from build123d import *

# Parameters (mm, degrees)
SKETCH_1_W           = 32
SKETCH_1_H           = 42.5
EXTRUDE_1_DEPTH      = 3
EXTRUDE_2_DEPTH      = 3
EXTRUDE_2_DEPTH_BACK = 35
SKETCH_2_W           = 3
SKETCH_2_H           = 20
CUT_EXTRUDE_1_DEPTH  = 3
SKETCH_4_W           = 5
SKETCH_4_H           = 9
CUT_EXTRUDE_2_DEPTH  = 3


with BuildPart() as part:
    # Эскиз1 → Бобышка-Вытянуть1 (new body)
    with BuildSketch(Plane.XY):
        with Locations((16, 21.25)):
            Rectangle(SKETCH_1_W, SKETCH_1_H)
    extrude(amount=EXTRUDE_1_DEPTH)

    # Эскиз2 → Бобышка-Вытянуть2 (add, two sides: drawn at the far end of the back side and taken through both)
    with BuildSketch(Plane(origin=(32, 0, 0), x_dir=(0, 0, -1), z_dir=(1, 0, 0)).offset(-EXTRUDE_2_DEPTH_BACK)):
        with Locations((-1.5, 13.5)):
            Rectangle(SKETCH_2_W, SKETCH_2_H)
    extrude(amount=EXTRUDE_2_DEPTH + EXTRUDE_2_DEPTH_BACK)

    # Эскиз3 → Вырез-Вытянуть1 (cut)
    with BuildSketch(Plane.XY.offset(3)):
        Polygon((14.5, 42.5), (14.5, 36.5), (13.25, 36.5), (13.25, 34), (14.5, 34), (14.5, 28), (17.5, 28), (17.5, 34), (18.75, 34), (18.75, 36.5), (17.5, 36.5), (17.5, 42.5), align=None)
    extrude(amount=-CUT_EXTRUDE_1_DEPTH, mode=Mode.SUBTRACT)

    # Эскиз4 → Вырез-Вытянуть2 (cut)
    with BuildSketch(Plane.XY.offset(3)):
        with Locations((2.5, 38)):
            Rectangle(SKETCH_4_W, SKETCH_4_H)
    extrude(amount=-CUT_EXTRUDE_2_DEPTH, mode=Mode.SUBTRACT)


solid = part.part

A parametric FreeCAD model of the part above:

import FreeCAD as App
import Part
import Sketcher
from FreeCAD import Vector
Q = App.Units.Quantity


def add_polygon(sketch, points):
    """Adds a closed chain of lines whose ends are joined by coincident constraints."""
    first, n = sketch.GeometryCount, len(points)
    for a, b in zip(points, points[1:] + points[:1]):
        sketch.addGeometry(Part.LineSegment(App.Vector(*a, 0), App.Vector(*b, 0)), False)
    for i in range(n):
        sketch.addConstraint(Sketcher.Constraint("Coincident", first + i, 2, first + (i + 1) % n, 1))

doc = App.newDocument("Part")
body = doc.addObject("PartDesign::Body", "Body")

sketch1 = doc.addObject("Sketcher::SketchObject", "Sketch")
body.addObject(sketch1)
sketch1.AttachmentSupport = (doc.XY_Plane, [""])
sketch1.MapMode = "FlatFace"
add_polygon(sketch1, [(0, 42), (0, 0), (32, 0), (32, 42)])
sketch1.addConstraint([
    Sketcher.Constraint("Vertical", 0),
    Sketcher.Constraint("Horizontal", 1),
    Sketcher.Constraint("Vertical", 2),
    Sketcher.Constraint("Horizontal", 3),
    Sketcher.Constraint("Coincident", 0, 2, -1, 1),
    Sketcher.Constraint("DistanceX", 1, 1, 1, 2, Q("32 mm")),
    Sketcher.Constraint("DistanceY", 0, 2, 0, 1, Q("42.5 mm")),
])
pad1 = doc.addObject("PartDesign::Pad", "Pad")
body.addObject(pad1)
pad1.Profile = sketch1
pad1.Length = 3

sketch2 = doc.addObject("Sketcher::SketchObject", "Sketch001")
body.addObject(sketch2)
sketch2.AttachmentSupport = (doc.YZ_Plane, [""])
sketch2.MapMode = "FlatFace"
sketch2.AttachmentOffset = App.Placement(Vector(0, 0, 32), App.Rotation())
add_polygon(sketch2, [(23.5, 3), (3.5, 3), (3.5, 0), (23.5, 0)])
sketch2.addConstraint([
    Sketcher.Constraint("Horizontal", 0),
    Sketcher.Constraint("Vertical", 1),
    Sketcher.Constraint("Horizontal", 2),
    Sketcher.Constraint("Vertical", 3),
    Sketcher.Constraint("PointOnObject", 1, 2, -1),
    Sketcher.Constraint("DistanceX", 0, 2, 0, 1, Q("20 mm")),
    Sketcher.Constraint("DistanceY", 1, 2, 1, 1, Q("3 mm")),
    Sketcher.Constraint("DistanceX", -1, 1, 0, 2, Q("3.5 mm")),
])
pad2 = doc.addObject("PartDesign::Pad", "Pad001")
body.addObject(pad2)
pad2.Profile = sketch2
pad2.Type = "TwoLengths"
pad2.Length = 3
pad2.Length2 = 35

sketch3 = doc.addObject("Sketcher::SketchObject", "Sketch002")
body.addObject(sketch3)
sketch3.AttachmentSupport = (doc.XY_Plane, [""])
sketch3.MapMode = "FlatFace"
sketch3.AttachmentOffset = App.Placement(Vector(0, 0, 3), App.Rotation())
add_polygon(sketch3, [(14.5, 42.5), (14.5, 36.5), (13.2, 36.5), (13.2, 34), (14.5, 34), (14.5, 28), (17.5, 28), (17.5, 34), (18.8, 34), (18.8, 36.5), (17.5, 36.5), (17.5, 42.5)])
sketch3.addConstraint([
    Sketcher.Constraint("Vertical", 0),
    Sketcher.Constraint("Horizontal", 1),
    Sketcher.Constraint("Vertical", 2),
    Sketcher.Constraint("Horizontal", 3),
    Sketcher.Constraint("Vertical", 4),
    Sketcher.Constraint("Horizontal", 5),
    Sketcher.Constraint("Vertical", 6),
    Sketcher.Constraint("Horizontal", 7),
    Sketcher.Constraint("Vertical", 8),
    Sketcher.Constraint("Horizontal", 9),
    Sketcher.Constraint("Vertical", 10),
    Sketcher.Constraint("Horizontal", 11),
    Sketcher.Constraint("Horizontal", 3, 2, 6, 2),
    Sketcher.Constraint("Horizontal", 1, 2, 8, 2),
    Sketcher.Constraint("Vertical", 0, 2, 3, 2),
    Sketcher.Constraint("Vertical", 6, 2, 9, 2),
    Sketcher.Constraint("Equal", 3, 7),
    Sketcher.Constraint("Equal", 0, 4),
    Sketcher.Constraint("DistanceX", 5, 1, 5, 2, Q("3 mm")),
    Sketcher.Constraint("DistanceY", 0, 2, 0, 1, Q("6 mm")),
    Sketcher.Constraint("DistanceY", 2, 2, 2, 1, Q("2.5 mm")),
    Sketcher.Constraint("DistanceY", -1, 1, 2, 2, Q("34 mm")),
    Sketcher.Constraint("DistanceX", 1, 2, 1, 1, Q("1.25 mm")),
    Sketcher.Constraint("DistanceX", -1, 1, 0, 2, Q("14.5 mm")),
])
pocket1 = doc.addObject("PartDesign::Pocket", "Pocket")
body.addObject(pocket1)
pocket1.Profile = sketch3
pocket1.Length = 3

sketch4 = doc.addObject("Sketcher::SketchObject", "Sketch003")
body.addObject(sketch4)
sketch4.AttachmentSupport = (doc.XY_Plane, [""])
sketch4.MapMode = "FlatFace"
sketch4.AttachmentOffset = App.Placement(Vector(0, 0, 3), App.Rotation())
add_polygon(sketch4, [(0, 42), (0, 34), (5, 34), (5, 42)])
sketch4.addConstraint([
    Sketcher.Constraint("Vertical", 0),
    Sketcher.Constraint("Horizontal", 1),
    Sketcher.Constraint("Vertical", 2),
    Sketcher.Constraint("Horizontal", 3),
    Sketcher.Constraint("PointOnObject", 0, 2, -2),
    Sketcher.Constraint("DistanceX", 1, 1, 1, 2, Q("5 mm")),
    Sketcher.Constraint("DistanceY", 0, 2, 0, 1, Q("9 mm")),
    Sketcher.Constraint("DistanceY", -1, 1, 0, 2, Q("33.5 mm")),
])
pocket2 = doc.addObject("PartDesign::Pocket", "Pocket001")
body.addObject(pocket2)
pocket2.Profile = sketch4
pocket2.Length = 3

doc.recompute()
